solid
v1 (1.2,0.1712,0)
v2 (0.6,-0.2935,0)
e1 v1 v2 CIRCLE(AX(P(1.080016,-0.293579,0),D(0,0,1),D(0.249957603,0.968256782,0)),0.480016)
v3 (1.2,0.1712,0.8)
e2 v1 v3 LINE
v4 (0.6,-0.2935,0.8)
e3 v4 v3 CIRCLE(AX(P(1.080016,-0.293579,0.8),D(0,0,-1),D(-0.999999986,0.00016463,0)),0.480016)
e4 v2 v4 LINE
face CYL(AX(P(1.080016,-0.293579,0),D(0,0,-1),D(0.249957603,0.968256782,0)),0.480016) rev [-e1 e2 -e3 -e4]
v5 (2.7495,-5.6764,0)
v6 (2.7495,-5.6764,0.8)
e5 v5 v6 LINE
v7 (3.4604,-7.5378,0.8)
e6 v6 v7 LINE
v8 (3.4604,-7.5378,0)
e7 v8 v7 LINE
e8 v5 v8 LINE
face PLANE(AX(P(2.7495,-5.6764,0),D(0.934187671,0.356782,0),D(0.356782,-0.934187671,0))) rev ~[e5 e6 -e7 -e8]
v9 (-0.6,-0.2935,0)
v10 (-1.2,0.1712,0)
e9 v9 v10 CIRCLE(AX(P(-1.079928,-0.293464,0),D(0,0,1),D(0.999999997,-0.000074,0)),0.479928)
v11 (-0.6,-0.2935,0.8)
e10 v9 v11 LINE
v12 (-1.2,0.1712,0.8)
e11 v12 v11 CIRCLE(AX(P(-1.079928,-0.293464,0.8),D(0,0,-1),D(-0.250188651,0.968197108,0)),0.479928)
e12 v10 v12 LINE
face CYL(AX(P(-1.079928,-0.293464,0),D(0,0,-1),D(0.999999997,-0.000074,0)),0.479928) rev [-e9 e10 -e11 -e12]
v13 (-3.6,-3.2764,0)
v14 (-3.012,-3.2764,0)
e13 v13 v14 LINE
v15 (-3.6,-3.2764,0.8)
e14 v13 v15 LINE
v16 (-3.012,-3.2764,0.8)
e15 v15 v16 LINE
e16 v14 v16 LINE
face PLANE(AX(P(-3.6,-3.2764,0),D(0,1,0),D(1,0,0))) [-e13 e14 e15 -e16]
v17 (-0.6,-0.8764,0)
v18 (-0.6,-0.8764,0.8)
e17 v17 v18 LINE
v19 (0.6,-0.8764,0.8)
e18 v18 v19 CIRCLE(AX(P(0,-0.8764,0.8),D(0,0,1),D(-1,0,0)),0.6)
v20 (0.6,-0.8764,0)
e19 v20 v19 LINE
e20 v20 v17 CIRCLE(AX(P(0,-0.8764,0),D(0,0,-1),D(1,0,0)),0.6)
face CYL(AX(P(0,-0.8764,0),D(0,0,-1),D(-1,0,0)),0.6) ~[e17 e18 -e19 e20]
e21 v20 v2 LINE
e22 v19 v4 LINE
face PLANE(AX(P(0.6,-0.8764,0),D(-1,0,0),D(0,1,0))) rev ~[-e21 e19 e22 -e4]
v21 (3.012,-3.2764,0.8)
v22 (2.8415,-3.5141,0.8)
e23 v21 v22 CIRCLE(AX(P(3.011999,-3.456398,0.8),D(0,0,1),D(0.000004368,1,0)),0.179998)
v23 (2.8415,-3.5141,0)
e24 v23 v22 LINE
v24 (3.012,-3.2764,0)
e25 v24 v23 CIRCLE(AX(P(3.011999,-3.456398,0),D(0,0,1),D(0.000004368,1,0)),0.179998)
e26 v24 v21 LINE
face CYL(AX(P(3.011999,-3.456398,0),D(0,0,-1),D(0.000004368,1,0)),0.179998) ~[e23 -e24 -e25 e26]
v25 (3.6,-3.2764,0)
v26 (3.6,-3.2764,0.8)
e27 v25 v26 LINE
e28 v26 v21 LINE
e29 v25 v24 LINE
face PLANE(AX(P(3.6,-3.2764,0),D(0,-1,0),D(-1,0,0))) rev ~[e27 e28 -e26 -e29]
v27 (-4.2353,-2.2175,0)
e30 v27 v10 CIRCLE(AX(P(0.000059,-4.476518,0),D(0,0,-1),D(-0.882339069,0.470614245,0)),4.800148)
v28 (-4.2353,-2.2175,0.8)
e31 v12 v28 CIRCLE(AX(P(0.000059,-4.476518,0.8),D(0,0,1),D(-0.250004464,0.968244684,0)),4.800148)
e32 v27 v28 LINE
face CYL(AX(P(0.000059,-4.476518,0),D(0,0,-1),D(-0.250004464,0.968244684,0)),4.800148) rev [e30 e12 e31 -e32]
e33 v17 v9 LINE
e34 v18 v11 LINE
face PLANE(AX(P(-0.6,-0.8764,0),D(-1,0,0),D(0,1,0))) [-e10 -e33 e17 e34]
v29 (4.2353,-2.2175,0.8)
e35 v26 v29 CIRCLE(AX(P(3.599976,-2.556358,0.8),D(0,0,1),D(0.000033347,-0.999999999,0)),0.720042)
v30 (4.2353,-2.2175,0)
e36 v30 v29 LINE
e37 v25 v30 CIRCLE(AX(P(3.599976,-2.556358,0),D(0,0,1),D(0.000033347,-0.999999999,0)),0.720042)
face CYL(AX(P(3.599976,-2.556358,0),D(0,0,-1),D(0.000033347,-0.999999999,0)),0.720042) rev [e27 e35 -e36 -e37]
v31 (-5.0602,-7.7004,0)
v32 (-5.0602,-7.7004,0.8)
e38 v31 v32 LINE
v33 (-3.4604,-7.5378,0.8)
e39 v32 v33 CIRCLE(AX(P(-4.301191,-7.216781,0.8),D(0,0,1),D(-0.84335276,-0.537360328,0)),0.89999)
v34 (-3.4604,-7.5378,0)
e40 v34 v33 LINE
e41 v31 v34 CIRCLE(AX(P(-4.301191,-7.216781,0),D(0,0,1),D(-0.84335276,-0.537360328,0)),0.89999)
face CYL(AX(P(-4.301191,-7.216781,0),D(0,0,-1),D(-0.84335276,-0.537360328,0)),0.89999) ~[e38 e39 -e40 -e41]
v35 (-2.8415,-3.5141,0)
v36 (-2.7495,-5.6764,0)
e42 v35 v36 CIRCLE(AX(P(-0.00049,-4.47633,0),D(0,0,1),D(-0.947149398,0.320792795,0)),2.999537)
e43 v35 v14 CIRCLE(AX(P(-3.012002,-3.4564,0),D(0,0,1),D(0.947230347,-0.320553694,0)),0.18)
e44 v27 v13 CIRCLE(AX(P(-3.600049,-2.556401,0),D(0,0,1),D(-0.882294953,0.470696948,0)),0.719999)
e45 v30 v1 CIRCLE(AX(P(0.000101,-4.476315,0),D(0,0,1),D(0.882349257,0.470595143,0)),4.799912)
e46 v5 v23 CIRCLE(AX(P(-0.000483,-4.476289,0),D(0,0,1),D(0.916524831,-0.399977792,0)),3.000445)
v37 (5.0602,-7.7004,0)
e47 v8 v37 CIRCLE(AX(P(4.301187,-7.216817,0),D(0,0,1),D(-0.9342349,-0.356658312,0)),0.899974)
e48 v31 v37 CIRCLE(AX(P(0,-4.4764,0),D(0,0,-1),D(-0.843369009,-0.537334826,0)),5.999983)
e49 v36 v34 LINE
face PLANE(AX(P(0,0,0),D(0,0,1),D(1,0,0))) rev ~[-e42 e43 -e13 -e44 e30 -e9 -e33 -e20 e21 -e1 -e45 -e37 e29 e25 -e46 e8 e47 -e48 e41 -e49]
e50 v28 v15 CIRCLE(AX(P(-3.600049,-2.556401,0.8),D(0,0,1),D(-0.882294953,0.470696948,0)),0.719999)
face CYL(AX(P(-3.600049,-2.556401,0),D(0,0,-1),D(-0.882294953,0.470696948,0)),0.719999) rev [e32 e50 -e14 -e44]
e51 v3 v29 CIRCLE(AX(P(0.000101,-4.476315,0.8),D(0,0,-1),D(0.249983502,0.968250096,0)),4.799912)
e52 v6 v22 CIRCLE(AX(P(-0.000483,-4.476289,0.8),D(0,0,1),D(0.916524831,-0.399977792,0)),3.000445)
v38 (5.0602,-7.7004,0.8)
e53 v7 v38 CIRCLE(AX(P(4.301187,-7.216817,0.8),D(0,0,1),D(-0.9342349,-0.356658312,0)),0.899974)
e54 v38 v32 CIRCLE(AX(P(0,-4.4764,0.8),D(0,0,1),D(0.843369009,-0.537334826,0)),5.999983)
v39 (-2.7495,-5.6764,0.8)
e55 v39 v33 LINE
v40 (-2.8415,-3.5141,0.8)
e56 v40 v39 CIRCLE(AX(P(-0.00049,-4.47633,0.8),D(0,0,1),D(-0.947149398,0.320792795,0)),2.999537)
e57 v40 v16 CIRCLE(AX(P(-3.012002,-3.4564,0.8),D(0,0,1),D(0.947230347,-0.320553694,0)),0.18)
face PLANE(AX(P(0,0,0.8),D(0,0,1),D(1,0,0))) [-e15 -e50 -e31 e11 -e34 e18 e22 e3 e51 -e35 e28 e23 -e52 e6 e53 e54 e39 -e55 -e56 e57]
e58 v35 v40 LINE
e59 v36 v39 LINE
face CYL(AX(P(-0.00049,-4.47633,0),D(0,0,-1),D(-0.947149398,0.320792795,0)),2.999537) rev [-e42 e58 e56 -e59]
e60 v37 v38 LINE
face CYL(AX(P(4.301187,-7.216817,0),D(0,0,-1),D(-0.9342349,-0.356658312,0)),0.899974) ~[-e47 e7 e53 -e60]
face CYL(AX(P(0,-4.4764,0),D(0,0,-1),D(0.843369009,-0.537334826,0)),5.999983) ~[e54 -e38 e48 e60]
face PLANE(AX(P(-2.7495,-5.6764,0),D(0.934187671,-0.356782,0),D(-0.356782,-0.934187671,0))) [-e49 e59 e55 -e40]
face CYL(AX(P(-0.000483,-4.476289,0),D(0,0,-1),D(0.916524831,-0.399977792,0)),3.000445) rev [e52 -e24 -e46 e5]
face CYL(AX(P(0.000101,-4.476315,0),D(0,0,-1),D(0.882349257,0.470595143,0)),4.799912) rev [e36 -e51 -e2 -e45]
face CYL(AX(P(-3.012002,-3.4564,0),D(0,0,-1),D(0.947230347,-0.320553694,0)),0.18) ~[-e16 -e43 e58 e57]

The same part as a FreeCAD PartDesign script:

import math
import FreeCAD as App
import Part
import Sketcher
from FreeCAD import Vector
Q = App.Units.Quantity

doc = App.newDocument("Part")
body = doc.addObject("PartDesign::Body", "Body")

# Sketch on XY plane
sketch1 = body.newObject("Sketcher::SketchObject", "Sketch")
sketch1.AttachmentSupport = (doc.getObject("XY_Plane"), [""])
sketch1.MapMode = "FlatFace"
sketch1.addGeometry([
    Part.ArcOfCircle(Part.Circle(Vector(0, -4.48, 0), Vector(0, 0, 1), 4.8), math.radians(104), math.radians(152)),  # 0
    Part.ArcOfCircle(Part.Circle(Vector(-1.08, -0.29, 0), Vector(0, 0, 1), 0.48), math.radians(0), math.radians(104)),  # 1
    Part.LineSegment(Vector(-0.6, -0.29, 0), Vector(-0.6, -0.88, 0)),  # 2
    Part.ArcOfCircle(Part.Circle(Vector(0, -0.88, 0), Vector(0, 0, 1), 0.6), math.radians(180), math.radians(360)),  # 3
    Part.LineSegment(Vector(0.6, -0.88, 0), Vector(0.6, -0.29, 0)),  # 4
    Part.ArcOfCircle(Part.Circle(Vector(1.08, -0.29, 0), Vector(0, 0, 1), 0.48), math.radians(76), math.radians(180)),  # 5
    Part.ArcOfCircle(Part.Circle(Vector(0, -4.48, 0), Vector(0, 0, 1), 4.8), math.radians(28), math.radians(76)),  # 6
    Part.ArcOfCircle(Part.Circle(Vector(3.6, -2.56, 0), Vector(0, 0, 1), 0.72), math.radians(-90), math.radians(28)),  # 7
    Part.LineSegment(Vector(3.6, -3.28, 0), Vector(3.01, -3.28, 0)),  # 8
    Part.ArcOfCircle(Part.Circle(Vector(3.01, -3.46, 0), Vector(0, 0, 1), 0.18), math.radians(90), math.radians(199)),  # 9
    Part.ArcOfCircle(Part.Circle(Vector(0, -4.48, 0), Vector(0, 0, 1), 3), math.radians(-24), math.radians(19)),  # 10
    Part.LineSegment(Vector(2.75, -5.68, 0), Vector(3.46, -7.54, 0)),  # 11
    Part.ArcOfCircle(Part.Circle(Vector(4.3, -7.22, 0), Vector(0, 0, 1), 0.9), math.radians(-159), math.radians(-33)),  # 12
    Part.ArcOfCircle(Part.Circle(Vector(0, -4.48, 0), Vector(0, 0, 1), 6), math.radians(-33), math.radians(213)),  # 13
    Part.ArcOfCircle(Part.Circle(Vector(-4.3, -7.22, 0), Vector(0, 0, 1), 0.9), math.radians(-147), math.radians(-21)),  # 14
    Part.LineSegment(Vector(-3.46, -7.54, 0), Vector(-2.75, -5.68, 0)),  # 15
    Part.ArcOfCircle(Part.Circle(Vector(0, -4.48, 0), Vector(0, 0, 1), 3), math.radians(161), math.radians(204)),  # 16
    Part.ArcOfCircle(Part.Circle(Vector(-3.01, -3.46, 0), Vector(0, 0, 1), 0.18), math.radians(-19), math.radians(90)),  # 17
    Part.LineSegment(Vector(-3.01, -3.28, 0), Vector(-3.6, -3.28, 0)),  # 18
    Part.ArcOfCircle(Part.Circle(Vector(-3.6, -2.56, 0), Vector(0, 0, 1), 0.72), math.radians(152), math.radians(270)),  # 19
], False)
sketch1.addConstraint([
    Sketcher.Constraint("Tangent", 0, 1, 1, 2),
    Sketcher.Constraint("Tangent", 1, 1, 2, 1),
    Sketcher.Constraint("Tangent", 2, 2, 3, 1),
    Sketcher.Constraint("Tangent", 3, 2, 4, 1),
    Sketcher.Constraint("Tangent", 4, 2, 5, 2),
    Sketcher.Constraint("Tangent", 5, 1, 6, 2),
    Sketcher.Constraint("Tangent", 6, 1, 7, 2),
    Sketcher.Constraint("Tangent", 7, 1, 8, 1),
    Sketcher.Constraint("Tangent", 8, 2, 9, 1),
    Sketcher.Constraint("Tangent", 9, 2, 10, 2),
    Sketcher.Constraint("Coincident", 10, 1, 11, 1),
    Sketcher.Constraint("Tangent", 11, 2, 12, 1),
    Sketcher.Constraint("Tangent", 12, 2, 13, 1),
    Sketcher.Constraint("Tangent", 13, 2, 14, 1),
    Sketcher.Constraint("Tangent", 14, 2, 15, 1),
    Sketcher.Constraint("Coincident", 15, 2, 16, 2),
    Sketcher.Constraint("Tangent", 16, 1, 17, 1),
    Sketcher.Constraint("Tangent", 17, 2, 18, 1),
    Sketcher.Constraint("Tangent", 18, 2, 19, 2),
    Sketcher.Constraint("Tangent", 19, 1, 0, 2),
    Sketcher.Constraint("Vertical", 2),
    Sketcher.Constraint("Vertical", 4),
    Sketcher.Constraint("Horizontal", 8),
    Sketcher.Constraint("Horizontal", 18),
    Sketcher.Constraint("Coincident", 6, 3, 0, 3),
    Sketcher.Constraint("Coincident", 10, 3, 0, 3),
    Sketcher.Constraint("Coincident", 13, 3, 0, 3),
    Sketcher.Constraint("Coincident", 16, 3, 0, 3),
    Sketcher.Constraint("Equal", 1, 5),
    Sketcher.Constraint("Equal", 0, 6),
    Sketcher.Constraint("Equal", 12, 14),
    Sketcher.Constraint("Equal", 10, 16),
    Sketcher.Constraint("Equal", 9, 17),
    Sketcher.Constraint("Equal", 7, 19),
    Sketcher.Constraint("Symmetric", 1, 3, 5, 3, -2),
    Sketcher.Constraint("Symmetric", 11, 2, 14, 2, -2),
    Sketcher.Constraint("Horizontal", 9, 3, 17, 3),
    Sketcher.Constraint("Radius", 10, Q("3 mm")),
    Sketcher.Constraint("Radius", 13, Q("6 mm")),
    Sketcher.Constraint("Radius", 0, Q("4.8 mm")),
    Sketcher.Constraint("Radius", 3, Q("0.6 mm")),
    Sketcher.Constraint("Radius", 12, Q("0.9 mm")),
    Sketcher.Constraint("Radius", 1, Q("0.48 mm")),
    Sketcher.Constraint("Radius", 7, Q("0.72 mm")),
    Sketcher.Constraint("Radius", 9, Q("0.18 mm")),
    Sketcher.Constraint("DistanceX", 19, 3, 1, 1, Q("3 mm")),
    Sketcher.Constraint("DistanceY", 15, 2, 0, 3, Q("1.2 mm")),
    Sketcher.Constraint("DistanceY", 0, 3, 3, 3, Q("3.6 mm")),
    Sketcher.Constraint("DistanceY", 9, 2, -1, 1, Q("3.514 mm")),
    Sketcher.Constraint("DistanceY", 11, 2, 12, 3, Q("0.321 mm")),
])
pad1 = body.newObject("PartDesign::Pad", "Pad")
pad1.Profile = sketch1
pad1.Length = 0.8

doc.recompute()
